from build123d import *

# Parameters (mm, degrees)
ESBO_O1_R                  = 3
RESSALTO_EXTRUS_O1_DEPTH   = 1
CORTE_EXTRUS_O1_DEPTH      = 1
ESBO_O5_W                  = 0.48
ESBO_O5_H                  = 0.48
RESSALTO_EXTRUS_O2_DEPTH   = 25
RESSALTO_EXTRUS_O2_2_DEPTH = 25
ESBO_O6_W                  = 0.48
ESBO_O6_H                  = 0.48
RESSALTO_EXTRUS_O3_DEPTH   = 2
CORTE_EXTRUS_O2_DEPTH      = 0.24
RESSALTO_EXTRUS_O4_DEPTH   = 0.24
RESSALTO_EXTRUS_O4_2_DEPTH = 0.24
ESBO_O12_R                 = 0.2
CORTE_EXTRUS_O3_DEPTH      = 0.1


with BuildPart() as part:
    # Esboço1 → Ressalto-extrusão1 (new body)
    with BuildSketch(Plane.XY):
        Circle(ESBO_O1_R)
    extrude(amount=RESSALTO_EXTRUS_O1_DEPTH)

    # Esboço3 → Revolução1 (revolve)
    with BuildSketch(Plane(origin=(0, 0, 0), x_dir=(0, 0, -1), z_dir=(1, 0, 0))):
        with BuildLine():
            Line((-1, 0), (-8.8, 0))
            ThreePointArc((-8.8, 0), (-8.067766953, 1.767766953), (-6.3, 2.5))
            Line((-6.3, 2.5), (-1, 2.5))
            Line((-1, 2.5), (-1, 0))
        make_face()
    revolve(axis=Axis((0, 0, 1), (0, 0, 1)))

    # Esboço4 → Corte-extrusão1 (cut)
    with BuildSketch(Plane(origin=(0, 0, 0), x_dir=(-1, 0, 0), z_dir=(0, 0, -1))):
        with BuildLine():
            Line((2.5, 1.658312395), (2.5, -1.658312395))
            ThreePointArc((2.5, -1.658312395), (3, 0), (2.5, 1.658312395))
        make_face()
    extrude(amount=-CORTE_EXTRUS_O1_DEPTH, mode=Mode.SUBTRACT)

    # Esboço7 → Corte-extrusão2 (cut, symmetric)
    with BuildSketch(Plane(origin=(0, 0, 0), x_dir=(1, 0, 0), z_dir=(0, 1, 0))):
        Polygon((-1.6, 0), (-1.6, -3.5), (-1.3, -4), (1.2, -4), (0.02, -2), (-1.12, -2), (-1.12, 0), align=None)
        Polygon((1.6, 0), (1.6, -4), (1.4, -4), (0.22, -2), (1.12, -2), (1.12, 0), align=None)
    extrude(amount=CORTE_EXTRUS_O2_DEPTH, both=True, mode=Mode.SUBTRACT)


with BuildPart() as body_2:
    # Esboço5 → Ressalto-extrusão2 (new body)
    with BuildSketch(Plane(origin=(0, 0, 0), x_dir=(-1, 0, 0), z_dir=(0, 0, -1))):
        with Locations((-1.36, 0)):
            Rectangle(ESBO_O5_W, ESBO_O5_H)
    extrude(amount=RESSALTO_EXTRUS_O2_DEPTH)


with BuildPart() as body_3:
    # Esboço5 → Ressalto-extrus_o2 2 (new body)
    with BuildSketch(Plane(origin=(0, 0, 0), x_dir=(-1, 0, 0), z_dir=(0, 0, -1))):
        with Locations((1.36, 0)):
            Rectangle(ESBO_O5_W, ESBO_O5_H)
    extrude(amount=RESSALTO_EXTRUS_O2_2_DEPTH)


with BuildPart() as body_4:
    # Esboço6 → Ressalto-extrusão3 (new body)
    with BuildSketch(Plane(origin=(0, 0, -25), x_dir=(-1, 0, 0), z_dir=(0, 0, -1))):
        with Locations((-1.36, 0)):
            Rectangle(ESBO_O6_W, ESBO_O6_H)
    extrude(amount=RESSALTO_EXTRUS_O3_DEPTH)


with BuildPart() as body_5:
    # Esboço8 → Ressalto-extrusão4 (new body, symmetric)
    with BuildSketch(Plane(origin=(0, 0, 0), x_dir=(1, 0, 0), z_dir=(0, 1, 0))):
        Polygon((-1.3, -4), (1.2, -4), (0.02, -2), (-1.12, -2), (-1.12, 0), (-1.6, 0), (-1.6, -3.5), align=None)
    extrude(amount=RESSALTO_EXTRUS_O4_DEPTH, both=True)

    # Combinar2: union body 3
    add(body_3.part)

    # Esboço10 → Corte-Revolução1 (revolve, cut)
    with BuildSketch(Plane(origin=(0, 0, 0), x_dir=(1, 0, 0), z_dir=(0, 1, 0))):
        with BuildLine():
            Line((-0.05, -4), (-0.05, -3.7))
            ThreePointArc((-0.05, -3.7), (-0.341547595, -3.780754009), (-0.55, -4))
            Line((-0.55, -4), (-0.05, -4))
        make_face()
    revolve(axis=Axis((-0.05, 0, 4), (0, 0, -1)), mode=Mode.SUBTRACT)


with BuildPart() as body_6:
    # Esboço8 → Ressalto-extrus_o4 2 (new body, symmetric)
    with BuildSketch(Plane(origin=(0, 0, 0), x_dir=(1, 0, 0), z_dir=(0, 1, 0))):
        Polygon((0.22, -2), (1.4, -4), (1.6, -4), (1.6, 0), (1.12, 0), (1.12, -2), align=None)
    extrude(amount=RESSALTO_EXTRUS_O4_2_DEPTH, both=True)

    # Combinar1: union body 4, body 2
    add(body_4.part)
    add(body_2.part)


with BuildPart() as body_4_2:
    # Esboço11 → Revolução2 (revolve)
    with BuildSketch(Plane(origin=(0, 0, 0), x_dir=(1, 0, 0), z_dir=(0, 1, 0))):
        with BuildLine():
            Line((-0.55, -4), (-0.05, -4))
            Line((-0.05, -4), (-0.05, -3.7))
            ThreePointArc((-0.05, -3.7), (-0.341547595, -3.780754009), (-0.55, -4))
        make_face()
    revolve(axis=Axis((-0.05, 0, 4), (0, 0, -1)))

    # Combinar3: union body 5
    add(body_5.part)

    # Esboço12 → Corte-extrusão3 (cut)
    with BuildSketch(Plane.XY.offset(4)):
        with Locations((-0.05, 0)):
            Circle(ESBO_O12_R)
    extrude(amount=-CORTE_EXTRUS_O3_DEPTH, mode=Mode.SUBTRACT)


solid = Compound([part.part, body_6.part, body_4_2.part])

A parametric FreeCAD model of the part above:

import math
import FreeCAD as App
import Part
import Sketcher
from FreeCAD import Vector

doc = App.newDocument("Part")
params = doc.addObject("Spreadsheet::Sheet", "Params")
for row, (alias, value) in enumerate([
    ("sketch1_diameter", "6 mm"),
    ("pad1_length", "1 mm"),
    ("sketch2_radius", "2.5 mm"),
    ("sketch2_height", "7.8 mm"),
    ("revolution_angle", "360 deg"),
    ("sketch3_radius", "3 mm"),
    ("pocket1_length", "1 mm"),
    ("sketch4_height", "2 mm"),
    ("sketch4_height2", "4 mm"),
    ("sketch4_width", "2.5 mm"),
    ("sketch4_width2", "0.9 mm"),
    ("sketch4_width3", "0.2 mm"),
    ("pocket2_length", "0.48 mm"),
    ("sketch5_width", "0.48 mm"),
    ("pad2_length", "25 mm"),
    ("sketch6_width", "0.48 mm"),
    ("pad3_length", "25 mm"),
    ("sketch7_width", "0.48 mm"),
    ("pad4_length", "2 mm"),
    ("sketch8_height", "2 mm"),
    ("sketch8_width", "2.5 mm"),
    ("sketch8_height2", "3.5 mm"),
    ("sketch8_width2", "1.14 mm"),
    ("sketch8_width3", "0.48 mm"),
    ("pad5_length", "0.48 mm"),
    ("sketch9_width", "0.5 mm"),
    ("sketch9_height", "0.3 mm"),
    ("groove_angle", "360 deg"),
    ("sketch10_height", "4 mm"),
    ("sketch10_height2", "2 mm"),
    ("sketch10_width", "0.2 mm"),
    ("sketch10_width2", "0.9 mm"),
    ("sketch10_width3", "0.48 mm"),
    ("pad6_length", "0.48 mm"),
    ("sketch11_width", "0.5 mm"),
    ("sketch11_height", "0.3 mm"),
    ("revolution2_angle", "360 deg"),
    ("sketch12_diameter", "0.4 mm"),
    ("pocket3_length", "0.1 mm"),
], start=1):
    params.set(f"A{row}", alias)
    params.set(f"B{row}", "=" + value)
    params.setAlias(f"B{row}", alias)

body = doc.addObject("PartDesign::Body", "Body")

# Sketch on XY plane
sketch1 = body.newObject("Sketcher::SketchObject", "Sketch")
sketch1.AttachmentSupport = (doc.getObject("XY_Plane"), [""])
sketch1.MapMode = "FlatFace"
sketch1.addGeometry(Part.Circle(Vector(0, 0, 0), Vector(0, 0, 1), 3), False)
sketch1.addConstraint([
    Sketcher.Constraint("Coincident", 0, 3, -1, 1),
    Sketcher.Constraint("Diameter", 0, 6.0),
])
sketch1.setExpression("Constraints[1]", "Params.sketch1_diameter")
pad1 = body.newObject("PartDesign::Pad", "Pad")
pad1.Profile = sketch1
pad1.setExpression("Length", "Params.pad1_length")

# Sketch on YZ plane
sketch2 = body.newObject("Sketcher::SketchObject", "Sketch001")
sketch2.AttachmentSupport = (doc.getObject("YZ_Plane"), [""])
sketch2.MapMode = "FlatFace"
sketch2.addGeometry([
    Part.LineSegment(Vector(0, 8.8, 0), Vector(0, 1, 0)),
    Part.LineSegment(Vector(0, 1, 0), Vector(2.5, 1, 0)),
    Part.LineSegment(Vector(2.5, 1, 0), Vector(2.5, 6.3, 0)),
    Part.ArcOfCircle(Part.Circle(Vector(0, 6.3, 0), Vector(0, 0, 1), 2.5), math.radians(0), math.radians(90)),
], False)
sketch2.addConstraint([
    Sketcher.Constraint("Coincident", 0, 2, 1, 1),
    Sketcher.Constraint("Coincident", 1, 2, 2, 1),
    Sketcher.Constraint("Tangent", 2, 2, 3, 1),
    Sketcher.Constraint("Coincident", 3, 2, 0, 1),
    Sketcher.Constraint("Vertical", 0),
    Sketcher.Constraint("Horizontal", 1),
    Sketcher.Constraint("Vertical", 2),
    Sketcher.Constraint("PointOnObject", 3, 3, -2),
    Sketcher.Constraint("PointOnObject", 0, 2, -2),
    Sketcher.Constraint("Radius", 3, 2.5),
    Sketcher.Constraint("DistanceY", 0, 2, 0, 1, 7.8),
    Sketcher.Constraint("DistanceY", -1, 1, 0, 2, 1.0),
])
sketch2.setExpression("Constraints[9]", "Params.sketch2_radius")
sketch2.setExpression("Constraints[10]", "Params.sketch2_height")
revolution = body.newObject("PartDesign::Revolution", "Revolution")
revolution.Profile = sketch2
revolution.ReferenceAxis = (sketch2, ["V_Axis"])
revolution.setExpression("Angle", "Params.revolution_angle")

# Sketch on XY plane
sketch3 = body.newObject("Sketcher::SketchObject", "Sketch002")
sketch3.AttachmentSupport = (doc.getObject("XY_Plane"), [""])
sketch3.MapMode = "FlatFace"
sketch3.addGeometry([
    Part.LineSegment(Vector(-2.5, 1.7, 0), Vector(-2.5, -1.7, 0)),
    Part.ArcOfCircle(Part.Circle(Vector(0, 0, 0), Vector(0, 0, 1), 3), math.radians(146), math.radians(214)),
], False)
sketch3.addConstraint([
    Sketcher.Constraint("Coincident", 0, 1, 1, 1),
    Sketcher.Constraint("Coincident", 1, 2, 0, 2),
    Sketcher.Constraint("Vertical", 0),
    Sketcher.Constraint("Coincident", 1, 3, -1, 1),
    Sketcher.Constraint("Radius", 1, 3.0),
    Sketcher.Constraint("DistanceX", 0, 1, -1, 1, 2.5),
])
sketch3.setExpression("Constraints[4]", "Params.sketch3_radius")
pocket1 = body.newObject("PartDesign::Pocket", "Pocket")
pocket1.Profile = sketch3
pocket1.setExpression("Length", "Params.pocket1_length")
pocket1.Reversed = True

# Sketch on XZ plane
sketch4 = body.newObject("Sketcher::SketchObject", "Sketch003")
sketch4.AttachmentSupport = (doc.getObject("XZ_Plane"), [""])
sketch4.MapMode = "FlatFace"
sketch4.addGeometry([
    Part.LineSegment(Vector(-1.6, 0, 0), Vector(-1.6, 3.5, 0)),  # 0
    Part.LineSegment(Vector(-1.6, 3.5, 0), Vector(-1.3, 4, 0)),  # 1
    Part.LineSegment(Vector(-1.3, 4, 0), Vector(1.2, 4, 0)),  # 2
    Part.LineSegment(Vector(1.2, 4, 0), Vector(0.02, 2, 0)),  # 3
    Part.LineSegment(Vector(0.02, 2, 0), Vector(-1.12, 2, 0)),  # 4
    Part.LineSegment(Vector(-1.12, 2, 0), Vector(-1.12, 0, 0)),  # 5
    Part.LineSegment(Vector(-1.12, 0, 0), Vector(-1.6, 0, 0)),  # 6
    Part.LineSegment(Vector(1.6, 4, 0), Vector(1.6, 0, 0)),  # 7
    Part.LineSegment(Vector(1.6, 0, 0), Vector(1.12, 0, 0)),  # 8
    Part.LineSegment(Vector(1.12, 0, 0), Vector(1.12, 2, 0)),  # 9
    Part.LineSegment(Vector(1.12, 2, 0), Vector(0.22, 2, 0)),  # 10
    Part.LineSegment(Vector(0.22, 2, 0), Vector(1.4, 4, 0)),  # 11
    Part.LineSegment(Vector(1.4, 4, 0), Vector(1.6, 4, 0)),  # 12
], False)
sketch4.addConstraint([
    Sketcher.Constraint("Coincident", 0, 2, 1, 1),
    Sketcher.Constraint("Coincident", 1, 2, 2, 1),
    Sketcher.Constraint("Coincident", 2, 2, 3, 1),
    Sketcher.Constraint("Coincident", 3, 2, 4, 1),
    Sketcher.Constraint("Coincident", 4, 2, 5, 1),
    Sketcher.Constraint("Coincident", 5, 2, 6, 1),
    Sketcher.Constraint("Coincident", 6, 2, 0, 1),
    Sketcher.Constraint("Coincident", 7, 2, 8, 1),
    Sketcher.Constraint("Coincident", 8, 2, 9, 1),
    Sketcher.Constraint("Coincident", 9, 2, 10, 1),
    Sketcher.Constraint("Coincident", 10, 2, 11, 1),
    Sketcher.Constraint("Coincident", 11, 2, 12, 1),
    Sketcher.Constraint("Coincident", 12, 2, 7, 1),
    Sketcher.Constraint("Vertical", 0),
    Sketcher.Constraint("Horizontal", 2),
    Sketcher.Constraint("Horizontal", 4),
    Sketcher.Constraint("Vertical", 5),
    Sketcher.Constraint("Horizontal", 6),
    Sketcher.Constraint("Vertical", 7),
    Sketcher.Constraint("Horizontal", 8),
    Sketcher.Constraint("Vertical", 9),
    Sketcher.Constraint("Horizontal", 10),
    Sketcher.Constraint("Horizontal", 12),
    Sketcher.Constraint("Symmetric", 6, 2, 7, 2, -1, 1),
    Sketcher.Constraint("Symmetric", 5, 2, 8, 2, -2),
    Sketcher.Constraint("Parallel", 3, 11),
    Sketcher.Constraint("Horizontal", 4, 2, 9, 2),
    Sketcher.Constraint("Horizontal", 2, 2, 11, 2),
    Sketcher.Constraint("DistanceY", 5, 2, 5, 1, 2.0),
    Sketcher.Constraint("DistanceY", 7, 2, 7, 1, 4.0),
    Sketcher.Constraint("DistanceX", 2, 1, 2, 2, 2.5),
    Sketcher.Constraint("DistanceX", 10, 2, 10, 1, 0.9),
    Sketcher.Constraint("DistanceX", 12, 1, 12, 2, 0.2),
    Sketcher.Constraint("DistanceY", 0, 1, 0, 2, 3.5),
    Sketcher.Constraint("DistanceX", 4, 2, 4, 1, 1.14),
    Sketcher.Constraint("DistanceX", 6, 2, 6, 1, 0.48),
    Sketcher.Constraint("DistanceX", 0, 2, -1, 1, 1.6),
])
sketch4.setExpression("Constraints[28]", "Params.sketch4_height")
sketch4.setExpression("Constraints[29]", "Params.sketch4_height2")
sketch4.setExpression("Constraints[30]", "Params.sketch4_width")
sketch4.setExpression("Constraints[31]", "Params.sketch4_width2")
sketch4.setExpression("Constraints[32]", "Params.sketch4_width3")
pocket2 = body.newObject("PartDesign::Pocket", "Pocket001")
pocket2.Profile = sketch4
pocket2.setExpression("Length", "Params.pocket2_length")
pocket2.Midplane = True
body2 = doc.addObject("PartDesign::Body", "Body001")

# Sketch on XY plane
sketch5 = body2.newObject("Sketcher::SketchObject", "Sketch004")
sketch5.AttachmentSupport = (doc.getObject("XY_Plane001"), [""])
sketch5.MapMode = "FlatFace"
sketch5.addGeometry([
    Part.LineSegment(Vector(1.6, 0.24, 0), Vector(1.6, -0.24, 0)),
    Part.LineSegment(Vector(1.6, -0.24, 0), Vector(1.12, -0.24, 0)),
    Part.LineSegment(Vector(1.12, -0.24, 0), Vector(1.12, 0.24, 0)),
    Part.LineSegment(Vector(1.12, 0.24, 0), Vector(1.6, 0.24, 0)),
], False)
sketch5.addConstraint([
    Sketcher.Constraint("Coincident", 0, 2, 1, 1),
    Sketcher.Constraint("Coincident", 1, 2, 2, 1),
    Sketcher.Constraint("Coincident", 2, 2, 3, 1),
    Sketcher.Constraint("Coincident", 3, 2, 0, 1),
    Sketcher.Constraint("Vertical", 0),
    Sketcher.Constraint("Horizontal", 1),
    Sketcher.Constraint("Vertical", 2),
    Sketcher.Constraint("Horizontal", 3),
    Sketcher.Constraint("Equal", 3, 0),
    Sketcher.Constraint("DistanceX", 1, 2, 1, 1, 0.48),
    Sketcher.Constraint("DistanceX", -1, 1, 0, 2, 1.6),
    Sketcher.Constraint("DistanceY", 0, 2, -1, 1, 0.24),
])
sketch5.setExpression("Constraints[9]", "Params.sketch5_width")
pad2 = body2.newObject("PartDesign::Pad", "Pad001")
pad2.Profile = sketch5
pad2.setExpression("Length", "Params.pad2_length")
pad2.Reversed = True
body3 = doc.addObject("PartDesign::Body", "Body002")

# Sketch on XY plane
sketch6 = body3.newObject("Sketcher::SketchObject", "Sketch005")
sketch6.AttachmentSupport = (doc.getObject("XY_Plane002"), [""])
sketch6.MapMode = "FlatFace"
sketch6.addGeometry([
    Part.LineSegment(Vector(-1.12, 0.24, 0), Vector(-1.12, -0.24, 0)),
    Part.LineSegment(Vector(-1.12, -0.24, 0), Vector(-1.6, -0.24, 0)),
    Part.LineSegment(Vector(-1.6, -0.24, 0), Vector(-1.6, 0.24, 0)),
    Part.LineSegment(Vector(-1.6, 0.24, 0), Vector(-1.12, 0.24, 0)),
], False)
sketch6.addConstraint([
    Sketcher.Constraint("Coincident", 0, 2, 1, 1),
    Sketcher.Constraint("Coincident", 1, 2, 2, 1),
    Sketcher.Constraint("Coincident", 2, 2, 3, 1),
    Sketcher.Constraint("Coincident", 3, 2, 0, 1),
    Sketcher.Constraint("Vertical", 0),
    Sketcher.Constraint("Horizontal", 1),
    Sketcher.Constraint("Vertical", 2),
    Sketcher.Constraint("Horizontal", 3),
    Sketcher.Constraint("Equal", 3, 0),
    Sketcher.Constraint("DistanceX", 1, 2, 1, 1, 0.48),
    Sketcher.Constraint("DistanceX", 1, 2, -1, 1, 1.6),
    Sketcher.Constraint("DistanceY", 0, 2, -1, 1, 0.24),
])
sketch6.setExpression("Constraints[9]", "Params.sketch6_width")
pad3 = body3.newObject("PartDesign::Pad", "Pad002")
pad3.Profile = sketch6
pad3.setExpression("Length", "Params.pad3_length")
pad3.Reversed = True
body4 = doc.addObject("PartDesign::Body", "Body003")

# Sketch on XY plane
sketch7 = body4.newObject("Sketcher::SketchObject", "Sketch006")
sketch7.AttachmentSupport = (doc.getObject("XY_Plane003"), [""])
sketch7.MapMode = "FlatFace"
sketch7.AttachmentOffset = App.Placement(Vector(0, 0, -25), App.Rotation())
sketch7.addGeometry([
    Part.LineSegment(Vector(1.6, 0.24, 0), Vector(1.6, -0.24, 0)),
    Part.LineSegment(Vector(1.6, -0.24, 0), Vector(1.12, -0.24, 0)),
    Part.LineSegment(Vector(1.12, -0.24, 0), Vector(1.12, 0.24, 0)),
    Part.LineSegment(Vector(1.12, 0.24, 0), Vector(1.6, 0.24, 0)),
], False)
sketch7.addConstraint([
    Sketcher.Constraint("Coincident", 0, 2, 1, 1),
    Sketcher.Constraint("Coincident", 1, 2, 2, 1),
    Sketcher.Constraint("Coincident", 2, 2, 3, 1),
    Sketcher.Constraint("Coincident", 3, 2, 0, 1),
    Sketcher.Constraint("Vertical", 0),
    Sketcher.Constraint("Horizontal", 1),
    Sketcher.Constraint("Vertical", 2),
    Sketcher.Constraint("Horizontal", 3),
    Sketcher.Constraint("Equal", 3, 0),
    Sketcher.Constraint("DistanceX", 1, 2, 1, 1, 0.48),
    Sketcher.Constraint("DistanceX", -1, 1, 0, 2, 1.6),
    Sketcher.Constraint("DistanceY", 0, 2, -1, 1, 0.24),
])
sketch7.setExpression("Constraints[9]", "Params.sketch7_width")
pad4 = body4.newObject("PartDesign::Pad", "Pad003")
pad4.Profile = sketch7
pad4.setExpression("Length", "Params.pad4_length")
pad4.Reversed = True
body5 = doc.addObject("PartDesign::Body", "Body004")

# Sketch on XZ plane
sketch8 = body5.newObject("Sketcher::SketchObject", "Sketch007")
sketch8.AttachmentSupport = (doc.getObject("XZ_Plane004"), [""])
sketch8.MapMode = "FlatFace"
sketch8.addGeometry([
    Part.LineSegment(Vector(-1.3, 4, 0), Vector(1.2, 4, 0)),  # 0
    Part.LineSegment(Vector(1.2, 4, 0), Vector(0.02, 2, 0)),  # 1
    Part.LineSegment(Vector(0.02, 2, 0), Vector(-1.12, 2, 0)),  # 2
    Part.LineSegment(Vector(-1.12, 2, 0), Vector(-1.12, 0, 0)),  # 3
    Part.LineSegment(Vector(-1.12, 0, 0), Vector(-1.6, 0, 0)),  # 4
    Part.LineSegment(Vector(-1.6, 0, 0), Vector(-1.6, 3.5, 0)),  # 5
    Part.LineSegment(Vector(-1.6, 3.5, 0), Vector(-1.3, 4, 0)),  # 6
], False)
sketch8.addConstraint([
    Sketcher.Constraint("Coincident", 0, 2, 1, 1),
    Sketcher.Constraint("Coincident", 1, 2, 2, 1),
    Sketcher.Constraint("Coincident", 2, 2, 3, 1),
    Sketcher.Constraint("Coincident", 3, 2, 4, 1),
    Sketcher.Constraint("Coincident", 4, 2, 5, 1),
    Sketcher.Constraint("Coincident", 5, 2, 6, 1),
    Sketcher.Constraint("Coincident", 6, 2, 0, 1),
    Sketcher.Constraint("Horizontal", 0),
    Sketcher.Constraint("Horizontal", 2),
    Sketcher.Constraint("Vertical", 3),
    Sketcher.Constraint("Horizontal", 4),
    Sketcher.Constraint("Vertical", 5),
    Sketcher.Constraint("PointOnObject", 3, 2, -1),
    Sketcher.Constraint("DistanceY", 3, 2, 3, 1, 2.0),
    Sketcher.Constraint("DistanceX", 0, 1, 0, 2, 2.5),
    Sketcher.Constraint("DistanceY", 5, 1, 5, 2, 3.5),
    Sketcher.Constraint("DistanceY", -1, 1, 0, 2, 4.0),
    Sketcher.Constraint("DistanceX", 2, 2, 2, 1, 1.14),
    Sketcher.Constraint("DistanceX", 4, 2, 4, 1, 0.48),
    Sketcher.Constraint("DistanceX", -1, 1, 0, 2, 1.2),
    Sketcher.Constraint("DistanceX", 4, 2, -1, 1, 1.6),
])
sketch8.setExpression("Constraints[13]", "Params.sketch8_height")
sketch8.setExpression("Constraints[14]", "Params.sketch8_width")
sketch8.setExpression("Constraints[15]", "Params.sketch8_height2")
sketch8.setExpression("Constraints[17]", "Params.sketch8_width2")
sketch8.setExpression("Constraints[18]", "Params.sketch8_width3")
pad5 = body5.newObject("PartDesign::Pad", "Pad004")
pad5.Profile = sketch8
pad5.setExpression("Length", "Params.pad5_length")
pad5.Midplane = True
doc.recompute()

boolean = body5.newObject("PartDesign::Boolean", "Boolean")
boolean.Type = "Fuse"
boolean.addObjects([body3])

# Sketch on XZ plane
sketch9 = body5.newObject("Sketcher::SketchObject", "Sketch008")
sketch9.AttachmentSupport = (doc.getObject("XZ_Plane004"), [""])
sketch9.MapMode = "FlatFace"
sketch9.addGeometry([
    Part.LineSegment(Vector(-0.05, 4, 0), Vector(-0.05, 3.7, 0)),
    Part.ArcOfCircle(Part.Circle(Vector(-0.05, 4.27, 0), Vector(0, 0, 1), 0.57), math.radians(-152), math.radians(-90)),
    Part.LineSegment(Vector(-0.55, 4, 0), Vector(-0.05, 4, 0)),
], False)
sketch9.addGeometry(Part.LineSegment(Vector(-0.05, 4.27, 0), Vector(-0.05, 3.7, 0)), True)  # axis
sketch9.addConstraint([
    Sketcher.Constraint("Coincident", 0, 2, 1, 2),
    Sketcher.Constraint("Coincident", 1, 1, 2, 1),
    Sketcher.Constraint("Coincident", 2, 2, 0, 1),
    Sketcher.Constraint("Vertical", 0),
    Sketcher.Constraint("Horizontal", 2),
    Sketcher.Constraint("Vertical", 3),
    Sketcher.Constraint("Coincident", 3, 1, 1, 3),
    Sketcher.Constraint("Coincident", 3, 2, 0, 2),
    Sketcher.Constraint("DistanceX", 2, 1, 2, 2, 0.5),
    Sketcher.Constraint("DistanceY", 0, 2, 0, 1, 0.3),
    Sketcher.Constraint("DistanceY", -1, 1, 1, 1, 4.0),
    Sketcher.Constraint("DistanceX", 1, 3, -1, 1, 0.05),
])
sketch9.setExpression("Constraints[8]", "Params.sketch9_width")
sketch9.setExpression("Constraints[9]", "Params.sketch9_height")
groove = body5.newObject("PartDesign::Groove", "Groove")
groove.Profile = sketch9
groove.ReferenceAxis = (sketch9, ["Axis0"])
groove.setExpression("Angle", "Params.groove_angle")
body6 = doc.addObject("PartDesign::Body", "Body005")
body6.AllowCompound = True

# Sketch on XZ plane
sketch10 = body6.newObject("Sketcher::SketchObject", "Sketch009")
sketch10.AttachmentSupport = (doc.getObject("XZ_Plane005"), [""])
sketch10.MapMode = "FlatFace"
sketch10.addGeometry([
    Part.LineSegment(Vector(0.22, 2, 0), Vector(1.4, 4, 0)),  # 0
    Part.LineSegment(Vector(1.4, 4, 0), Vector(1.6, 4, 0)),  # 1
    Part.LineSegment(Vector(1.6, 4, 0), Vector(1.6, 0, 0)),  # 2
    Part.LineSegment(Vector(1.6, 0, 0), Vector(1.12, 0, 0)),  # 3
    Part.LineSegment(Vector(1.12, 0, 0), Vector(1.12, 2, 0)),  # 4
    Part.LineSegment(Vector(1.12, 2, 0), Vector(0.22, 2, 0)),  # 5
], False)
sketch10.addConstraint([
    Sketcher.Constraint("Coincident", 0, 2, 1, 1),
    Sketcher.Constraint("Coincident", 1, 2, 2, 1),
    Sketcher.Constraint("Coincident", 2, 2, 3, 1),
    Sketcher.Constraint("Coincident", 3, 2, 4, 1),
    Sketcher.Constraint("Coincident", 4, 2, 5, 1),
    Sketcher.Constraint("Coincident", 5, 2, 0, 1),
    Sketcher.Constraint("Horizontal", 1),
    Sketcher.Constraint("Vertical", 2),
    Sketcher.Constraint("Horizontal", 3),
    Sketcher.Constraint("Vertical", 4),
    Sketcher.Constraint("Horizontal", 5),
    Sketcher.Constraint("PointOnObject", 2, 2, -1),
    Sketcher.Constraint("DistanceY", 2, 2, 2, 1, 4.0),
    Sketcher.Constraint("DistanceY", 4, 1, 4, 2, 2.0),
    Sketcher.Constraint("DistanceX", 1, 1, 1, 2, 0.2),
    Sketcher.Constraint("DistanceX", 5, 2, 5, 1, 0.9),
    Sketcher.Constraint("DistanceX", 3, 2, 3, 1, 0.48),
    Sketcher.Constraint("DistanceX", -1, 1, 0, 2, 1.4),
])
sketch10.setExpression("Constraints[12]", "Params.sketch10_height")
sketch10.setExpression("Constraints[13]", "Params.sketch10_height2")
sketch10.setExpression("Constraints[14]", "Params.sketch10_width")
sketch10.setExpression("Constraints[15]", "Params.sketch10_width2")
sketch10.setExpression("Constraints[16]", "Params.sketch10_width3")
pad6 = body6.newObject("PartDesign::Pad", "Pad005")
pad6.Profile = sketch10
pad6.setExpression("Length", "Params.pad6_length")
pad6.Midplane = True
doc.recompute()

boolean2 = body6.newObject("PartDesign::Boolean", "Boolean001")
boolean2.Type = "Fuse"
boolean2.addObjects([body4])
doc.recompute()

boolean3 = body6.newObject("PartDesign::Boolean", "Boolean002")
boolean3.Type = "Fuse"
boolean3.addObjects([body2])
body7 = doc.addObject("PartDesign::Body", "Body006")

# Sketch on XZ plane
sketch11 = body7.newObject("Sketcher::SketchObject", "Sketch010")
sketch11.AttachmentSupport = (doc.getObject("XZ_Plane006"), [""])
sketch11.MapMode = "FlatFace"
sketch11.addGeometry([
    Part.LineSegment(Vector(-0.55, 4, 0), Vector(-0.05, 4, 0)),
    Part.LineSegment(Vector(-0.05, 4, 0), Vector(-0.05, 3.7, 0)),
    Part.ArcOfCircle(Part.Circle(Vector(-0.05, 4.27, 0), Vector(0, 0, 1), 0.57), math.radians(-152), math.radians(-90)),
], False)
sketch11.addGeometry(Part.LineSegment(Vector(-0.05, 4.27, 0), Vector(-0.05, 3.7, 0)), True)  # axis
sketch11.addConstraint([
    Sketcher.Constraint("Coincident", 0, 2, 1, 1),
    Sketcher.Constraint("Coincident", 1, 2, 2, 2),
    Sketcher.Constraint("Coincident", 2, 1, 0, 1),
    Sketcher.Constraint("Horizontal", 0),
    Sketcher.Constraint("Vertical", 1),
    Sketcher.Constraint("Vertical", 3),
    Sketcher.Constraint("Coincident", 3, 1, 2, 3),
    Sketcher.Constraint("Coincident", 3, 2, 1, 2),
    Sketcher.Constraint("DistanceX", 0, 1, 0, 2, 0.5),
    Sketcher.Constraint("DistanceY", 1, 2, 1, 1, 0.3),
    Sketcher.Constraint("DistanceY", -1, 1, 0, 2, 4.0),
    Sketcher.Constraint("DistanceX", 2, 3, -1, 1, 0.05),
])
sketch11.setExpression("Constraints[8]", "Params.sketch11_width")
sketch11.setExpression("Constraints[9]", "Params.sketch11_height")
revolution2 = body7.newObject("PartDesign::Revolution", "Revolution001")
revolution2.Profile = sketch11
revolution2.ReferenceAxis = (sketch11, ["Axis0"])
revolution2.setExpression("Angle", "Params.revolution2_angle")
doc.recompute()

boolean4 = body7.newObject("PartDesign::Boolean", "Boolean003")
boolean4.Type = "Fuse"
boolean4.addObjects([body5])

# Sketch on XY plane
sketch12 = body7.newObject("Sketcher::SketchObject", "Sketch011")
sketch12.AttachmentSupport = (doc.getObject("XY_Plane006"), [""])
sketch12.MapMode = "FlatFace"
sketch12.AttachmentOffset = App.Placement(Vector(0, 0, 4), App.Rotation())
sketch12.addGeometry(Part.Circle(Vector(-0.05, 0, 0), Vector(0, 0, 1), 0.2), False)
sketch12.addConstraint([
    Sketcher.Constraint("PointOnObject", 0, 3, -1),
    Sketcher.Constraint("Diameter", 0, 0.4),
    Sketcher.Constraint("DistanceX", 0, 3, -1, 1, 0.05),
])
sketch12.setExpression("Constraints[1]", "Params.sketch12_diameter")
pocket3 = body7.newObject("PartDesign::Pocket", "Pocket002")
pocket3.Profile = sketch12
pocket3.setExpression("Length", "Params.pocket3_length")

doc.recompute()
